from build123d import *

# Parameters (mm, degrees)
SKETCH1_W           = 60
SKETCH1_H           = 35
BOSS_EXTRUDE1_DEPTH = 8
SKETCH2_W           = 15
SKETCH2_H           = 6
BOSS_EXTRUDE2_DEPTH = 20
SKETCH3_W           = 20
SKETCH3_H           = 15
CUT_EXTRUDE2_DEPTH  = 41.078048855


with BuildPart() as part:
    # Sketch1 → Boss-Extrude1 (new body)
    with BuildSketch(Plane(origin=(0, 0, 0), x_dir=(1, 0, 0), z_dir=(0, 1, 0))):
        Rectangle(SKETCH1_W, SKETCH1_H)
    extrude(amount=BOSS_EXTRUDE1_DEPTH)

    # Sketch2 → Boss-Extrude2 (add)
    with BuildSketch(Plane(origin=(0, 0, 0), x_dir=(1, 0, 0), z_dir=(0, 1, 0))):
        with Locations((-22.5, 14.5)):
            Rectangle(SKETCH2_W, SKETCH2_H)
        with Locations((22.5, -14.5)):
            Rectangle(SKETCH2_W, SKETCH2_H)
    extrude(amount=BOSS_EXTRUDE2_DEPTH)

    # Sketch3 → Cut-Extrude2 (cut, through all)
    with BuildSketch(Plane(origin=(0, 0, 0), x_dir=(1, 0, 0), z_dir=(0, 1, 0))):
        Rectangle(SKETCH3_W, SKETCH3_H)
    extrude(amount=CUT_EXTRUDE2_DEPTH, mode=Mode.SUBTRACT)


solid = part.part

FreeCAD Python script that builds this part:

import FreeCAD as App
import Part
import Sketcher
from FreeCAD import Vector
Q = App.Units.Quantity


def add_polygon(sketch, points):
    """Adds a closed chain of lines whose ends are joined by coincident constraints."""
    first, n = sketch.GeometryCount, len(points)
    for a, b in zip(points, points[1:] + points[:1]):
        sketch.addGeometry(Part.LineSegment(App.Vector(*a, 0), App.Vector(*b, 0)), False)
    for i in range(n):
        sketch.addConstraint(Sketcher.Constraint("Coincident", first + i, 2, first + (i + 1) % n, 1))

doc = App.newDocument("Part")
body = doc.addObject("PartDesign::Body", "Body")

# Sketch on XZ plane
sketch1 = body.newObject("Sketcher::SketchObject", "Sketch")
sketch1.AttachmentSupport = (doc.getObject("XZ_Plane"), [""])
sketch1.MapMode = "FlatFace"
add_polygon(sketch1, [(-30, -17.5), (-30, 17.5), (30, 17.5), (30, -17.5)])  # lines 0-3
sketch1.addConstraint([
    Sketcher.Constraint("Vertical", 0),
    Sketcher.Constraint("Horizontal", 1),
    Sketcher.Constraint("Vertical", 2),
    Sketcher.Constraint("Horizontal", 3),
    Sketcher.Constraint("Symmetric", 0, 2, 2, 2, -1, 1),
    Sketcher.Constraint("DistanceX", 1, 1, 1, 2, Q("60 mm")),
    Sketcher.Constraint("DistanceY", 0, 1, 0, 2, Q("35 mm")),
])
pad1 = body.newObject("PartDesign::Pad", "Pad")
pad1.Profile = sketch1
pad1.Length = 8
pad1.Reversed = True

# Sketch on XZ plane
sketch2 = body.newObject("Sketcher::SketchObject", "Sketch001")
sketch2.AttachmentSupport = (doc.getObject("XZ_Plane"), [""])
sketch2.MapMode = "FlatFace"
add_polygon(sketch2, [(-30, -17.5), (-30, -11.5), (-15, -11.5), (-15, -17.5)])  # lines 0-3
add_polygon(sketch2, [(15, 11.5), (15, 17.5), (30, 17.5), (30, 11.5)])  # lines 4-7
sketch2.addConstraint([
    Sketcher.Constraint("Vertical", 0),
    Sketcher.Constraint("Horizontal", 1),
    Sketcher.Constraint("Vertical", 2),
    Sketcher.Constraint("Horizontal", 3),
    Sketcher.Constraint("Vertical", 4),
    Sketcher.Constraint("Horizontal", 5),
    Sketcher.Constraint("Vertical", 6),
    Sketcher.Constraint("Horizontal", 7),
    Sketcher.Constraint("Symmetric", 2, 2, 4, 2, -1, 1),
    Sketcher.Constraint("Symmetric", 0, 2, 6, 2, -1, 1),
    Sketcher.Constraint("DistanceX", 1, 1, 1, 2, Q("15 mm")),
    Sketcher.Constraint("DistanceY", 0, 1, 0, 2, Q("6 mm")),
    Sketcher.Constraint("DistanceX", 0, 2, -1, 1, Q("30 mm")),
    Sketcher.Constraint("DistanceY", 1, 2, 4, 2, Q("29 mm")),
])
pad2 = body.newObject("PartDesign::Pad", "Pad001")
pad2.Profile = sketch2
pad2.Length = 20
pad2.Reversed = True

# Sketch on XZ plane
sketch3 = body.newObject("Sketcher::SketchObject", "Sketch002")
sketch3.AttachmentSupport = (doc.getObject("XZ_Plane"), [""])
sketch3.MapMode = "FlatFace"
add_polygon(sketch3, [(-10, -7.5), (-10, 7.5), (10, 7.5), (10, -7.5)])  # lines 0-3
sketch3.addConstraint([
    Sketcher.Constraint("Vertical", 0),
    Sketcher.Constraint("Horizontal", 1),
    Sketcher.Constraint("Vertical", 2),
    Sketcher.Constraint("Horizontal", 3),
    Sketcher.Constraint("Symmetric", 0, 2, 2, 2, -1, 1),
    Sketcher.Constraint("DistanceX", 1, 1, 1, 2, Q("20 mm")),
    Sketcher.Constraint("DistanceY", 0, 1, 0, 2, Q("15 mm")),
])
pocket1 = body.newObject("PartDesign::Pocket", "Pocket")
pocket1.Profile = sketch3
pocket1.Type = "ThroughAll"

doc.recompute()
